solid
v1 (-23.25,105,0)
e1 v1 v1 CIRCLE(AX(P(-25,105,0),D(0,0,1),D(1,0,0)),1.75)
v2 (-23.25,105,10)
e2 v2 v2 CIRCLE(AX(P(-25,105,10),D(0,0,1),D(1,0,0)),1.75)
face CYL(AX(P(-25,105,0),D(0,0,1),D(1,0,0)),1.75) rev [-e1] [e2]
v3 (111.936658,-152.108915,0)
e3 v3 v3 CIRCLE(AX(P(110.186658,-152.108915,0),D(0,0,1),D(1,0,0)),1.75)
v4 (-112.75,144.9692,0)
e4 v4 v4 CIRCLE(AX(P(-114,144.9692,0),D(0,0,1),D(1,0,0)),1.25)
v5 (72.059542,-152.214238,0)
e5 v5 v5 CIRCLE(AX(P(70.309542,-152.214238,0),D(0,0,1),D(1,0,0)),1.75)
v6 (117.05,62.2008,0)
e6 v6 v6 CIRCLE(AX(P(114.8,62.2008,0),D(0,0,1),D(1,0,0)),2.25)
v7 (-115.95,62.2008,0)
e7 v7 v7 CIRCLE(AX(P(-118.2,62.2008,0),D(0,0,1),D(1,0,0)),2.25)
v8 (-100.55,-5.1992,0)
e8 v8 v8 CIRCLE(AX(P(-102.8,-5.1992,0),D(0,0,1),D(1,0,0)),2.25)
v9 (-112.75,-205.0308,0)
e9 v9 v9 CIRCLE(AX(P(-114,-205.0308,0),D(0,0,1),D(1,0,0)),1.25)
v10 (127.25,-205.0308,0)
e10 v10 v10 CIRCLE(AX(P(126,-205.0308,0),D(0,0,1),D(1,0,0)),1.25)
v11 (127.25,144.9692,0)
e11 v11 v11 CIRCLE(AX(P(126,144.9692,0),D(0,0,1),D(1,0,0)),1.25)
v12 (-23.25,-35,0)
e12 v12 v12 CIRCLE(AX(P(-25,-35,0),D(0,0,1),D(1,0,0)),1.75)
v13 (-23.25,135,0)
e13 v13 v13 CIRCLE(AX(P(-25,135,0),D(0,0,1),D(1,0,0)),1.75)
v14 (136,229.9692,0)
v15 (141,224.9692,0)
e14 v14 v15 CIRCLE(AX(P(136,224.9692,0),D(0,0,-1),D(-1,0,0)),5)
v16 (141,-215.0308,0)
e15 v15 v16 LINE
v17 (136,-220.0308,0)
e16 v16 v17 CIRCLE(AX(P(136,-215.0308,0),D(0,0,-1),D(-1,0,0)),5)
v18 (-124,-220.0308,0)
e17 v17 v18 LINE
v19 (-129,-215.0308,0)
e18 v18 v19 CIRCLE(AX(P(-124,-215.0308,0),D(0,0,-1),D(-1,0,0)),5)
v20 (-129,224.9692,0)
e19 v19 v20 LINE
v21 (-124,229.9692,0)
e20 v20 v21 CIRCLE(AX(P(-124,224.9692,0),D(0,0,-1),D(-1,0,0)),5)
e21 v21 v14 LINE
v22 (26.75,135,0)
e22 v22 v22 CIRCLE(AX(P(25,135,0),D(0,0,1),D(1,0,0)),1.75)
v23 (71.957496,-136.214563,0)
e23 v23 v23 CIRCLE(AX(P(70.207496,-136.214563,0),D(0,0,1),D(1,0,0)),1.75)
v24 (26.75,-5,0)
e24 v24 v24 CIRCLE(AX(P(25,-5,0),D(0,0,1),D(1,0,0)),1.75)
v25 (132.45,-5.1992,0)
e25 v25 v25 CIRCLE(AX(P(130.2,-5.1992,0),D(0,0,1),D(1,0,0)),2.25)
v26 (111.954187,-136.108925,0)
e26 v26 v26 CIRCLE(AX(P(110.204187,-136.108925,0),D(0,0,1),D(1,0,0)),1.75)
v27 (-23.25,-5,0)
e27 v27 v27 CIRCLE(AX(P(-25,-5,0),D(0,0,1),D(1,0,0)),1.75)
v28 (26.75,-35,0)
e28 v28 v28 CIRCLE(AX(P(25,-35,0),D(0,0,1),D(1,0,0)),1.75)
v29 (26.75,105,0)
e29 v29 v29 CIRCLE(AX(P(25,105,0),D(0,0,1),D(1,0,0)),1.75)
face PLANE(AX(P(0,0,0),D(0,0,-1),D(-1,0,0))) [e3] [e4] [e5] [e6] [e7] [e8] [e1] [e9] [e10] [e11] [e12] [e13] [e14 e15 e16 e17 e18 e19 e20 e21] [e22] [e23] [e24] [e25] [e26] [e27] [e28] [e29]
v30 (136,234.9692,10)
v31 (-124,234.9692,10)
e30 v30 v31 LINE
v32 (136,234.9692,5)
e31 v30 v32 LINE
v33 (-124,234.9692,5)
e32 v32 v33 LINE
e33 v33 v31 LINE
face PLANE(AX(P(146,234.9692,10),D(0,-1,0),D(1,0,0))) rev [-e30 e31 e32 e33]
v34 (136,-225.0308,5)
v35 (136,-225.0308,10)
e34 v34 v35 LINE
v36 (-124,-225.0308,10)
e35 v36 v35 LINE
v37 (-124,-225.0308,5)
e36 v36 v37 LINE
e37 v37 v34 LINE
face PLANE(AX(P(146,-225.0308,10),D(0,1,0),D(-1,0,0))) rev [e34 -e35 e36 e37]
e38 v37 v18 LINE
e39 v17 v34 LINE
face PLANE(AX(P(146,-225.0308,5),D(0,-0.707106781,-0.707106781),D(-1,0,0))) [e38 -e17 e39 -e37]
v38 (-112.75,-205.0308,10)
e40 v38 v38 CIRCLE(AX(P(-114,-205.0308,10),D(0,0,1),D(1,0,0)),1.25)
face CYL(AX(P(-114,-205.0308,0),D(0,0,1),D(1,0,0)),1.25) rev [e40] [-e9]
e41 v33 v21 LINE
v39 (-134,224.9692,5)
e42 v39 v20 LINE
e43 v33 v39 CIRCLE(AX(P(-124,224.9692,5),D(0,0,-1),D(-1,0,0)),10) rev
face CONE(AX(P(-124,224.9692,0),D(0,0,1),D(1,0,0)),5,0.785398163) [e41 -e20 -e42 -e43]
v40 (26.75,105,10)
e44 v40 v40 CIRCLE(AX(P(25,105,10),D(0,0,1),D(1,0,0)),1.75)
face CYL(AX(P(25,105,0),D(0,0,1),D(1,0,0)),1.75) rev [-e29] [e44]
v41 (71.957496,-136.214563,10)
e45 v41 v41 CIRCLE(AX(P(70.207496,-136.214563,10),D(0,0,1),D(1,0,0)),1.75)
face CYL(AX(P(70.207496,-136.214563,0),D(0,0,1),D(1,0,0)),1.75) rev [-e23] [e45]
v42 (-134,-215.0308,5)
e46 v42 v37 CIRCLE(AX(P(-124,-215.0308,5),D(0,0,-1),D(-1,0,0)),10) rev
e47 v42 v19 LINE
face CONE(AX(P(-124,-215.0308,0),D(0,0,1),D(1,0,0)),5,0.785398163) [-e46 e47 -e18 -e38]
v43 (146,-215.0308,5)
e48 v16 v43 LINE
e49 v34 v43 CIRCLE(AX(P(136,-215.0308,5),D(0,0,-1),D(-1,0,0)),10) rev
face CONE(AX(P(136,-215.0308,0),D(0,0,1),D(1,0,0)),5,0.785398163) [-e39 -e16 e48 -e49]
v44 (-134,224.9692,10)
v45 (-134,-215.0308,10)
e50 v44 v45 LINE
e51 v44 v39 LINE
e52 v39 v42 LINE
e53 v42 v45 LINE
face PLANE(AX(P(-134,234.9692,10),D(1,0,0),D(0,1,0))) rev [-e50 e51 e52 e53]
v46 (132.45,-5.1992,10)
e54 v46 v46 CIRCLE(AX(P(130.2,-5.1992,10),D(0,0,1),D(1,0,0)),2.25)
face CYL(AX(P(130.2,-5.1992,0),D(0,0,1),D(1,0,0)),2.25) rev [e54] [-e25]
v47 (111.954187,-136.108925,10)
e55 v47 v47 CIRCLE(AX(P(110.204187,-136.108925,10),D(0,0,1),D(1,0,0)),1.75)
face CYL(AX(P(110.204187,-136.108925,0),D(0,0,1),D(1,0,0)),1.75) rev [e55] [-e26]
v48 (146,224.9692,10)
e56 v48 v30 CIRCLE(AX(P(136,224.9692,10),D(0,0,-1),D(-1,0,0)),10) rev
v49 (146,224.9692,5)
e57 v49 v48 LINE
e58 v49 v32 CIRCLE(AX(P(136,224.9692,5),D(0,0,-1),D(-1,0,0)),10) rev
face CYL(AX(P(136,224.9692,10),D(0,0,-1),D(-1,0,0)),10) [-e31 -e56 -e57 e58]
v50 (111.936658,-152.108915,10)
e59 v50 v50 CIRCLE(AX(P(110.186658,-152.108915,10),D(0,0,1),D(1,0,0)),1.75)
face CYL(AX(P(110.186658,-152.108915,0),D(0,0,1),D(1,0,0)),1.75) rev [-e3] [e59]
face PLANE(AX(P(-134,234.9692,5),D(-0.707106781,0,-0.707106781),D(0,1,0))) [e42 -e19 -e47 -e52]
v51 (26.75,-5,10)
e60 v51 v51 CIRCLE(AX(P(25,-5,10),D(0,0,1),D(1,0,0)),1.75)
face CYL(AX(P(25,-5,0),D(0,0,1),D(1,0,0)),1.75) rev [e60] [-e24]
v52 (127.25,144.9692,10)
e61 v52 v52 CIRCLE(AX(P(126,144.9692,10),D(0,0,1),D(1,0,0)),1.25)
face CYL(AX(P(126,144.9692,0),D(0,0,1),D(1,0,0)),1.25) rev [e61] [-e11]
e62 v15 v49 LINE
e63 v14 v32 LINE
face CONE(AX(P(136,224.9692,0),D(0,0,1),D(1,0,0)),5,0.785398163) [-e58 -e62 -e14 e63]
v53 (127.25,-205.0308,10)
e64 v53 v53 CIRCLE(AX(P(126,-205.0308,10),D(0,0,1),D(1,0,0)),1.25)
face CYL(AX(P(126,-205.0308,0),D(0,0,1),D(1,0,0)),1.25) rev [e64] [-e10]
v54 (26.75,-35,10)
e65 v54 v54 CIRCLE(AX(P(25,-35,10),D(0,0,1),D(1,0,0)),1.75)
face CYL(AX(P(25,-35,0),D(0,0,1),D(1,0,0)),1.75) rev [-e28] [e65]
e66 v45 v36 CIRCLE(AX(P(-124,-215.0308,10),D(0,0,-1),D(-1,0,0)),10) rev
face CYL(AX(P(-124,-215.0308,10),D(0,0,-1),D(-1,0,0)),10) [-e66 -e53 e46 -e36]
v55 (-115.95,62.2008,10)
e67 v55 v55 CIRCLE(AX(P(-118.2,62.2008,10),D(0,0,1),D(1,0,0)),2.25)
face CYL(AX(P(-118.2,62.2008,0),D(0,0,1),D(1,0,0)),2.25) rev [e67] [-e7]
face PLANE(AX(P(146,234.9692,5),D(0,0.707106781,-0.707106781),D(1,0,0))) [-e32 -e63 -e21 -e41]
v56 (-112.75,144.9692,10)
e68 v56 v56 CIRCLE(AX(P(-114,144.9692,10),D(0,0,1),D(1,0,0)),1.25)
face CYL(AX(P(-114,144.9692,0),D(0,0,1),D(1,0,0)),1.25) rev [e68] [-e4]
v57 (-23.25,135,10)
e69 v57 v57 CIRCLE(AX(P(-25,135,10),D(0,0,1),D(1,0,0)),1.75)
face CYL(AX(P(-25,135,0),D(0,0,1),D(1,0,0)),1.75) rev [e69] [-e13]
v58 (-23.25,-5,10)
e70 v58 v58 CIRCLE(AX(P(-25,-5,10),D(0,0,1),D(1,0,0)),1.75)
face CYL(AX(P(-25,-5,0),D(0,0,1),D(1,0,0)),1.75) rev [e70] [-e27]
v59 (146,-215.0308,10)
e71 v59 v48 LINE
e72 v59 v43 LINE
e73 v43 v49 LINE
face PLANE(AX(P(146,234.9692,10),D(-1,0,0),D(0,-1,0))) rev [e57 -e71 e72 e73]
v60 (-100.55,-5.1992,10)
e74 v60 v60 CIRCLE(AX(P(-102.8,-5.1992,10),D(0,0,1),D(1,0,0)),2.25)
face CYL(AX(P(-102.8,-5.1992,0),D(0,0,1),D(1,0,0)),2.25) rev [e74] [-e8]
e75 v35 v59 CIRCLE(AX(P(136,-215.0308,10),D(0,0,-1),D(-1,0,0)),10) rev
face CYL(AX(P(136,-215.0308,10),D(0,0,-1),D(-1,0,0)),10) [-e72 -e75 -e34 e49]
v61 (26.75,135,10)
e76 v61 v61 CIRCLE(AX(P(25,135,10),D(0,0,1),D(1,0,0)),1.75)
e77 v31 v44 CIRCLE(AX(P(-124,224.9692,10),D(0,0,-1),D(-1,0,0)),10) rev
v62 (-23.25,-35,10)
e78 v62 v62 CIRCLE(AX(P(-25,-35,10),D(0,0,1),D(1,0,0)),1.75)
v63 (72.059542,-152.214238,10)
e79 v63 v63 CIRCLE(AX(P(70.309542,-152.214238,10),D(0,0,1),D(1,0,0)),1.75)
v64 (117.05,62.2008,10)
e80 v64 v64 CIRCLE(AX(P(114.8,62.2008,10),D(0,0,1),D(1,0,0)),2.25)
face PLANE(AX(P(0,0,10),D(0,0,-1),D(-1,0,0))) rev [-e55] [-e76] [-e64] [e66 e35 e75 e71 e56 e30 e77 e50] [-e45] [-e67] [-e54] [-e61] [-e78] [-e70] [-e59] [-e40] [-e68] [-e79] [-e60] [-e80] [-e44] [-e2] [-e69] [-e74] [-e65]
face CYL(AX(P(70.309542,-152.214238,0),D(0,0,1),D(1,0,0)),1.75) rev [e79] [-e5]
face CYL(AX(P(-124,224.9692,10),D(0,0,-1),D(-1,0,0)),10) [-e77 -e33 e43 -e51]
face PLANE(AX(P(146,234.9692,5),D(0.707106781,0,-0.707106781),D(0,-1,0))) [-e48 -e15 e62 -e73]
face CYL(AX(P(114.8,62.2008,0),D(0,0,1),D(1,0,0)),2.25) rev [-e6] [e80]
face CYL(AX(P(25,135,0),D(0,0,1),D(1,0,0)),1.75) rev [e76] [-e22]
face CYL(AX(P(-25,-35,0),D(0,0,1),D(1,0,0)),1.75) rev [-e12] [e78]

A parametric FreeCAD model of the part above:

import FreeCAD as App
import Part
import Sketcher

V = App.Vector
Q = App.Units.Quantity


def edges_at(feature, points):
    """Names of the edges that pass closest to the given points."""
    edges = feature.Shape.Edges
    near = lambda p: min(range(len(edges)), key=lambda i: edges[i].distToShape(Part.Vertex(*p))[0])
    return sorted({f"Edge{near(p) + 1}" for p in points})


def add_polygon(sketch, points):
    """Adds a closed chain of lines whose ends are joined by coincident constraints."""
    first, n = sketch.GeometryCount, len(points)
    for a, b in zip(points, points[1:] + points[:1]):
        sketch.addGeometry(Part.LineSegment(App.Vector(*a, 0), App.Vector(*b, 0)), False)
    for i in range(n):
        sketch.addConstraint(Sketcher.Constraint("Coincident", first + i, 2, first + (i + 1) % n, 1))

doc = App.newDocument("Part")
body = doc.addObject("PartDesign::Body", "Body")

sketch1 = body.newObject("Sketcher::SketchObject", "Sketch")
sketch1.AttachmentSupport = (doc.getObject("XY_Plane"), [""])
sketch1.MapMode = "FlatFace"
add_polygon(sketch1, [(-134, 235), (-134, -225), (146, -225), (146, 235)])
sketch1.addConstraint(Sketcher.Constraint("Vertical", 0))
sketch1.addConstraint(Sketcher.Constraint("Horizontal", 1))
sketch1.addConstraint(Sketcher.Constraint("Vertical", 2))
sketch1.addConstraint(Sketcher.Constraint("Horizontal", 3))
sketch1.addConstraint(Sketcher.Constraint("DistanceX", 1, 1, 1, 2, Q("280 mm")))
sketch1.addConstraint(Sketcher.Constraint("DistanceY", 0, 2, 0, 1, Q("460 mm")))
sketch1.addConstraint(Sketcher.Constraint("DistanceX", 0, 2, -1, 1, Q("134 mm")))
sketch1.addConstraint(Sketcher.Constraint("DistanceY", 0, 2, -1, 1, Q("225.0308 mm")))
pad1 = body.newObject("PartDesign::Pad", "Pad")
pad1.Profile = sketch1
pad1.Length = 10

sketch2 = body.newObject("Sketcher::SketchObject", "Sketch001")
sketch2.AttachmentSupport = (doc.getObject("XY_Plane"), [""])
sketch2.MapMode = "FlatFace"
sketch2.AttachmentOffset = App.Placement(V(0, 0, 10), App.Rotation())
sketch2.addGeometry(Part.Circle(V(25, 135, 0), V(0, 0, 1), 1.8), False)
sketch2.addGeometry(Part.Circle(V(25, 105, 0), V(0, 0, 1), 1.8), False)
sketch2.addGeometry(Part.Circle(V(-25, 135, 0), V(0, 0, 1), 1.8), False)
sketch2.addGeometry(Part.Circle(V(-25, 105, 0), V(0, 0, 1), 1.8), False)
sketch2.addGeometry(Part.Circle(V(-102.8, -5.2, 0), V(0, 0, 1), 2.2), False)
sketch2.addGeometry(Part.Circle(V(110.2, -152.1, 0), V(0, 0, 1), 1.8), False)
sketch2.addGeometry(Part.Circle(V(110.2, -136.1, 0), V(0, 0, 1), 1.8), False)
sketch2.addGeometry(Part.Circle(V(70.3, -152.2, 0), V(0, 0, 1), 1.8), False)
sketch2.addGeometry(Part.Circle(V(70.2, -136.2, 0), V(0, 0, 1), 1.8), False)
sketch2.addGeometry(Part.Circle(V(114.8, 62.2, 0), V(0, 0, 1), 2.2), False)
sketch2.addGeometry(Part.Circle(V(130.2, -5.2, 0), V(0, 0, 1), 2.2), False)
sketch2.addGeometry(Part.Circle(V(-118.2, 62.2, 0), V(0, 0, 1), 2.2), False)
sketch2.addGeometry(Part.Circle(V(25, -5, 0), V(0, 0, 1), 1.8), False)
sketch2.addGeometry(Part.Circle(V(25, -35, 0), V(0, 0, 1), 1.8), False)
sketch2.addGeometry(Part.Circle(V(-25, -35, 0), V(0, 0, 1), 1.8), False)
sketch2.addGeometry(Part.Circle(V(-25, -5, 0), V(0, 0, 1), 1.8), False)
sketch2.addConstraint(Sketcher.Constraint("Equal", 0, 1))
sketch2.addConstraint(Sketcher.Constraint("Equal", 1, 2))
sketch2.addConstraint(Sketcher.Constraint("Equal", 2, 3))
sketch2.addConstraint(Sketcher.Constraint("Equal", 3, 5))
sketch2.addConstraint(Sketcher.Constraint("Equal", 5, 6))
sketch2.addConstraint(Sketcher.Constraint("Equal", 6, 7))
sketch2.addConstraint(Sketcher.Constraint("Equal", 7, 8))
sketch2.addConstraint(Sketcher.Constraint("Equal", 4, 9))
sketch2.addConstraint(Sketcher.Constraint("Equal", 9, 10))
sketch2.addConstraint(Sketcher.Constraint("Equal", 10, 11))
sketch2.addConstraint(Sketcher.Constraint("Equal", 8, 12))
sketch2.addConstraint(Sketcher.Constraint("Equal", 12, 13))
sketch2.addConstraint(Sketcher.Constraint("Equal", 13, 14))
sketch2.addConstraint(Sketcher.Constraint("Equal", 14, 15))
sketch2.addConstraint(Sketcher.Constraint("Symmetric", 0, 3, 2, 3, -2))
sketch2.addConstraint(Sketcher.Constraint("Symmetric", 1, 3, 3, 3, -2))
sketch2.addConstraint(Sketcher.Constraint("Symmetric", 13, 3, 14, 3, -2))
sketch2.addConstraint(Sketcher.Constraint("Symmetric", 12, 3, 15, 3, -2))
sketch2.addConstraint(Sketcher.Constraint("Horizontal", 4, 3, 10, 3))
sketch2.addConstraint(Sketcher.Constraint("Horizontal", 9, 3, 11, 3))
sketch2.addConstraint(Sketcher.Constraint("Vertical", 0, 3, 1, 3))
sketch2.addConstraint(Sketcher.Constraint("Vertical", 1, 3, 12, 3))
sketch2.addConstraint(Sketcher.Constraint("Vertical", 12, 3, 13, 3))
sketch2.addConstraint(Sketcher.Constraint("Diameter", 0, Q("3.5 mm")))
sketch2.addConstraint(Sketcher.Constraint("Diameter", 4, Q("4.5 mm")))
sketch2.addConstraint(Sketcher.Constraint("DistanceX", -1, 1, 0, 3, Q("25 mm")))
sketch2.addConstraint(Sketcher.Constraint("DistanceY", -1, 1, 0, 3, Q("135 mm")))
sketch2.addConstraint(Sketcher.Constraint("DistanceY", -1, 1, 1, 3, Q("105 mm")))
sketch2.addConstraint(Sketcher.Constraint("DistanceY", 12, 3, -1, 1, Q("5 mm")))
sketch2.addConstraint(Sketcher.Constraint("DistanceY", 13, 3, -1, 1, Q("35 mm")))
sketch2.addConstraint(Sketcher.Constraint("DistanceX", 4, 3, -1, 1, Q("102.8 mm")))
sketch2.addConstraint(Sketcher.Constraint("DistanceX", -1, 1, 9, 3, Q("114.8 mm")))
sketch2.addConstraint(Sketcher.Constraint("DistanceX", -1, 1, 10, 3, Q("130.2 mm")))
sketch2.addConstraint(Sketcher.Constraint("DistanceX", 11, 3, -1, 1, Q("118.2 mm")))
sketch2.addConstraint(Sketcher.Constraint("DistanceY", 10, 3, 9, 3, Q("67.4 mm")))
sketch2.addConstraint(Sketcher.Constraint("DistanceY", 4, 3, -1, 1, Q("5.1992 mm")))
sketch2.addConstraint(Sketcher.Constraint("DistanceX", -1, 1, 5, 3, Q("110.186658 mm")))
sketch2.addConstraint(Sketcher.Constraint("DistanceX", 5, 3, 6, 3, Q("0.017529 mm")))
sketch2.addConstraint(Sketcher.Constraint("DistanceY", 5, 3, 6, 3, Q("15.99999 mm")))
sketch2.addConstraint(Sketcher.Constraint("DistanceX", 8, 3, 6, 3, Q("39.996691 mm")))
sketch2.addConstraint(Sketcher.Constraint("DistanceY", 8, 3, 6, 3, Q("0.105638 mm")))
sketch2.addConstraint(Sketcher.Constraint("DistanceY", 5, 3, -1, 1, Q("152.108915 mm")))
sketch2.addConstraint(Sketcher.Constraint("DistanceX", -1, 1, 7, 3, Q("70.309542 mm")))
sketch2.addConstraint(Sketcher.Constraint("DistanceY", 7, 3, -1, 1, Q("152.214238 mm")))
pocket1 = body.newObject("PartDesign::Pocket", "Pocket")
pocket1.Profile = sketch2
pocket1.Length = 10

sketch3 = body.newObject("Sketcher::SketchObject", "Sketch002")
sketch3.AttachmentSupport = (doc.getObject("XY_Plane"), [""])
sketch3.MapMode = "FlatFace"
sketch3.AttachmentOffset = App.Placement(V(0, 0, 10), App.Rotation())
sketch3.addGeometry(Part.Circle(V(126, 145, 0), V(0, 0, 1), 1.2), False)
sketch3.addGeometry(Part.Circle(V(126, -205, 0), V(0, 0, 1), 1.2), False)
sketch3.addGeometry(Part.Circle(V(-114, -205, 0), V(0, 0, 1), 1.2), False)
sketch3.addGeometry(Part.Circle(V(-114, 145, 0), V(0, 0, 1), 1.2), False)
sketch3.addConstraint(Sketcher.Constraint("Equal", 0, 1))
sketch3.addConstraint(Sketcher.Constraint("Equal", 1, 2))
sketch3.addConstraint(Sketcher.Constraint("Equal", 2, 3))
sketch3.addConstraint(Sketcher.Constraint("Horizontal", 1, 3, 2, 3))
sketch3.addConstraint(Sketcher.Constraint("Horizontal", 0, 3, 3, 3))
sketch3.addConstraint(Sketcher.Constraint("Vertical", 0, 3, 1, 3))
sketch3.addConstraint(Sketcher.Constraint("Vertical", 2, 3, 3, 3))
sketch3.addConstraint(Sketcher.Constraint("Diameter", 0, Q("2.5 mm")))
sketch3.addConstraint(Sketcher.Constraint("DistanceX", -1, 1, 0, 3, Q("126 mm")))
sketch3.addConstraint(Sketcher.Constraint("DistanceX", 2, 3, -1, 1, Q("114 mm")))
sketch3.addConstraint(Sketcher.Constraint("DistanceY", 1, 3, 0, 3, Q("350 mm")))
sketch3.addConstraint(Sketcher.Constraint("DistanceY", -1, 1, 0, 3, Q("144.9692 mm")))
pocket2 = body.newObject("PartDesign::Pocket", "Pocket001")
pocket2.Profile = sketch3
pocket2.Length = 10
doc.recompute()

fillet = body.newObject("PartDesign::Fillet", "Fillet")
fillet.Base = (pocket2, edges_at(pocket2, [
    (146, -225.031, 5),
    (-134, -225.031, 5),
    (-134, 234.969, 5),
    (146, 234.969, 5),
]))
fillet.Radius = 10
doc.recompute()

chamfer = body.newObject("PartDesign::Chamfer", "Chamfer")
chamfer.Base = (fillet, edges_at(fillet, [
    (6, -225.031, 0),
    (146, 4.969, 0),
    (-134, 4.969, 0),
    (6, 234.969, 0),
    (143.071, -222.102, 0),
    (143.071, 232.04, 0),
    (-131.071, 232.04, 0),
    (-131.071, -222.102, 0),
]))
chamfer.Size = 5

doc.recompute()
